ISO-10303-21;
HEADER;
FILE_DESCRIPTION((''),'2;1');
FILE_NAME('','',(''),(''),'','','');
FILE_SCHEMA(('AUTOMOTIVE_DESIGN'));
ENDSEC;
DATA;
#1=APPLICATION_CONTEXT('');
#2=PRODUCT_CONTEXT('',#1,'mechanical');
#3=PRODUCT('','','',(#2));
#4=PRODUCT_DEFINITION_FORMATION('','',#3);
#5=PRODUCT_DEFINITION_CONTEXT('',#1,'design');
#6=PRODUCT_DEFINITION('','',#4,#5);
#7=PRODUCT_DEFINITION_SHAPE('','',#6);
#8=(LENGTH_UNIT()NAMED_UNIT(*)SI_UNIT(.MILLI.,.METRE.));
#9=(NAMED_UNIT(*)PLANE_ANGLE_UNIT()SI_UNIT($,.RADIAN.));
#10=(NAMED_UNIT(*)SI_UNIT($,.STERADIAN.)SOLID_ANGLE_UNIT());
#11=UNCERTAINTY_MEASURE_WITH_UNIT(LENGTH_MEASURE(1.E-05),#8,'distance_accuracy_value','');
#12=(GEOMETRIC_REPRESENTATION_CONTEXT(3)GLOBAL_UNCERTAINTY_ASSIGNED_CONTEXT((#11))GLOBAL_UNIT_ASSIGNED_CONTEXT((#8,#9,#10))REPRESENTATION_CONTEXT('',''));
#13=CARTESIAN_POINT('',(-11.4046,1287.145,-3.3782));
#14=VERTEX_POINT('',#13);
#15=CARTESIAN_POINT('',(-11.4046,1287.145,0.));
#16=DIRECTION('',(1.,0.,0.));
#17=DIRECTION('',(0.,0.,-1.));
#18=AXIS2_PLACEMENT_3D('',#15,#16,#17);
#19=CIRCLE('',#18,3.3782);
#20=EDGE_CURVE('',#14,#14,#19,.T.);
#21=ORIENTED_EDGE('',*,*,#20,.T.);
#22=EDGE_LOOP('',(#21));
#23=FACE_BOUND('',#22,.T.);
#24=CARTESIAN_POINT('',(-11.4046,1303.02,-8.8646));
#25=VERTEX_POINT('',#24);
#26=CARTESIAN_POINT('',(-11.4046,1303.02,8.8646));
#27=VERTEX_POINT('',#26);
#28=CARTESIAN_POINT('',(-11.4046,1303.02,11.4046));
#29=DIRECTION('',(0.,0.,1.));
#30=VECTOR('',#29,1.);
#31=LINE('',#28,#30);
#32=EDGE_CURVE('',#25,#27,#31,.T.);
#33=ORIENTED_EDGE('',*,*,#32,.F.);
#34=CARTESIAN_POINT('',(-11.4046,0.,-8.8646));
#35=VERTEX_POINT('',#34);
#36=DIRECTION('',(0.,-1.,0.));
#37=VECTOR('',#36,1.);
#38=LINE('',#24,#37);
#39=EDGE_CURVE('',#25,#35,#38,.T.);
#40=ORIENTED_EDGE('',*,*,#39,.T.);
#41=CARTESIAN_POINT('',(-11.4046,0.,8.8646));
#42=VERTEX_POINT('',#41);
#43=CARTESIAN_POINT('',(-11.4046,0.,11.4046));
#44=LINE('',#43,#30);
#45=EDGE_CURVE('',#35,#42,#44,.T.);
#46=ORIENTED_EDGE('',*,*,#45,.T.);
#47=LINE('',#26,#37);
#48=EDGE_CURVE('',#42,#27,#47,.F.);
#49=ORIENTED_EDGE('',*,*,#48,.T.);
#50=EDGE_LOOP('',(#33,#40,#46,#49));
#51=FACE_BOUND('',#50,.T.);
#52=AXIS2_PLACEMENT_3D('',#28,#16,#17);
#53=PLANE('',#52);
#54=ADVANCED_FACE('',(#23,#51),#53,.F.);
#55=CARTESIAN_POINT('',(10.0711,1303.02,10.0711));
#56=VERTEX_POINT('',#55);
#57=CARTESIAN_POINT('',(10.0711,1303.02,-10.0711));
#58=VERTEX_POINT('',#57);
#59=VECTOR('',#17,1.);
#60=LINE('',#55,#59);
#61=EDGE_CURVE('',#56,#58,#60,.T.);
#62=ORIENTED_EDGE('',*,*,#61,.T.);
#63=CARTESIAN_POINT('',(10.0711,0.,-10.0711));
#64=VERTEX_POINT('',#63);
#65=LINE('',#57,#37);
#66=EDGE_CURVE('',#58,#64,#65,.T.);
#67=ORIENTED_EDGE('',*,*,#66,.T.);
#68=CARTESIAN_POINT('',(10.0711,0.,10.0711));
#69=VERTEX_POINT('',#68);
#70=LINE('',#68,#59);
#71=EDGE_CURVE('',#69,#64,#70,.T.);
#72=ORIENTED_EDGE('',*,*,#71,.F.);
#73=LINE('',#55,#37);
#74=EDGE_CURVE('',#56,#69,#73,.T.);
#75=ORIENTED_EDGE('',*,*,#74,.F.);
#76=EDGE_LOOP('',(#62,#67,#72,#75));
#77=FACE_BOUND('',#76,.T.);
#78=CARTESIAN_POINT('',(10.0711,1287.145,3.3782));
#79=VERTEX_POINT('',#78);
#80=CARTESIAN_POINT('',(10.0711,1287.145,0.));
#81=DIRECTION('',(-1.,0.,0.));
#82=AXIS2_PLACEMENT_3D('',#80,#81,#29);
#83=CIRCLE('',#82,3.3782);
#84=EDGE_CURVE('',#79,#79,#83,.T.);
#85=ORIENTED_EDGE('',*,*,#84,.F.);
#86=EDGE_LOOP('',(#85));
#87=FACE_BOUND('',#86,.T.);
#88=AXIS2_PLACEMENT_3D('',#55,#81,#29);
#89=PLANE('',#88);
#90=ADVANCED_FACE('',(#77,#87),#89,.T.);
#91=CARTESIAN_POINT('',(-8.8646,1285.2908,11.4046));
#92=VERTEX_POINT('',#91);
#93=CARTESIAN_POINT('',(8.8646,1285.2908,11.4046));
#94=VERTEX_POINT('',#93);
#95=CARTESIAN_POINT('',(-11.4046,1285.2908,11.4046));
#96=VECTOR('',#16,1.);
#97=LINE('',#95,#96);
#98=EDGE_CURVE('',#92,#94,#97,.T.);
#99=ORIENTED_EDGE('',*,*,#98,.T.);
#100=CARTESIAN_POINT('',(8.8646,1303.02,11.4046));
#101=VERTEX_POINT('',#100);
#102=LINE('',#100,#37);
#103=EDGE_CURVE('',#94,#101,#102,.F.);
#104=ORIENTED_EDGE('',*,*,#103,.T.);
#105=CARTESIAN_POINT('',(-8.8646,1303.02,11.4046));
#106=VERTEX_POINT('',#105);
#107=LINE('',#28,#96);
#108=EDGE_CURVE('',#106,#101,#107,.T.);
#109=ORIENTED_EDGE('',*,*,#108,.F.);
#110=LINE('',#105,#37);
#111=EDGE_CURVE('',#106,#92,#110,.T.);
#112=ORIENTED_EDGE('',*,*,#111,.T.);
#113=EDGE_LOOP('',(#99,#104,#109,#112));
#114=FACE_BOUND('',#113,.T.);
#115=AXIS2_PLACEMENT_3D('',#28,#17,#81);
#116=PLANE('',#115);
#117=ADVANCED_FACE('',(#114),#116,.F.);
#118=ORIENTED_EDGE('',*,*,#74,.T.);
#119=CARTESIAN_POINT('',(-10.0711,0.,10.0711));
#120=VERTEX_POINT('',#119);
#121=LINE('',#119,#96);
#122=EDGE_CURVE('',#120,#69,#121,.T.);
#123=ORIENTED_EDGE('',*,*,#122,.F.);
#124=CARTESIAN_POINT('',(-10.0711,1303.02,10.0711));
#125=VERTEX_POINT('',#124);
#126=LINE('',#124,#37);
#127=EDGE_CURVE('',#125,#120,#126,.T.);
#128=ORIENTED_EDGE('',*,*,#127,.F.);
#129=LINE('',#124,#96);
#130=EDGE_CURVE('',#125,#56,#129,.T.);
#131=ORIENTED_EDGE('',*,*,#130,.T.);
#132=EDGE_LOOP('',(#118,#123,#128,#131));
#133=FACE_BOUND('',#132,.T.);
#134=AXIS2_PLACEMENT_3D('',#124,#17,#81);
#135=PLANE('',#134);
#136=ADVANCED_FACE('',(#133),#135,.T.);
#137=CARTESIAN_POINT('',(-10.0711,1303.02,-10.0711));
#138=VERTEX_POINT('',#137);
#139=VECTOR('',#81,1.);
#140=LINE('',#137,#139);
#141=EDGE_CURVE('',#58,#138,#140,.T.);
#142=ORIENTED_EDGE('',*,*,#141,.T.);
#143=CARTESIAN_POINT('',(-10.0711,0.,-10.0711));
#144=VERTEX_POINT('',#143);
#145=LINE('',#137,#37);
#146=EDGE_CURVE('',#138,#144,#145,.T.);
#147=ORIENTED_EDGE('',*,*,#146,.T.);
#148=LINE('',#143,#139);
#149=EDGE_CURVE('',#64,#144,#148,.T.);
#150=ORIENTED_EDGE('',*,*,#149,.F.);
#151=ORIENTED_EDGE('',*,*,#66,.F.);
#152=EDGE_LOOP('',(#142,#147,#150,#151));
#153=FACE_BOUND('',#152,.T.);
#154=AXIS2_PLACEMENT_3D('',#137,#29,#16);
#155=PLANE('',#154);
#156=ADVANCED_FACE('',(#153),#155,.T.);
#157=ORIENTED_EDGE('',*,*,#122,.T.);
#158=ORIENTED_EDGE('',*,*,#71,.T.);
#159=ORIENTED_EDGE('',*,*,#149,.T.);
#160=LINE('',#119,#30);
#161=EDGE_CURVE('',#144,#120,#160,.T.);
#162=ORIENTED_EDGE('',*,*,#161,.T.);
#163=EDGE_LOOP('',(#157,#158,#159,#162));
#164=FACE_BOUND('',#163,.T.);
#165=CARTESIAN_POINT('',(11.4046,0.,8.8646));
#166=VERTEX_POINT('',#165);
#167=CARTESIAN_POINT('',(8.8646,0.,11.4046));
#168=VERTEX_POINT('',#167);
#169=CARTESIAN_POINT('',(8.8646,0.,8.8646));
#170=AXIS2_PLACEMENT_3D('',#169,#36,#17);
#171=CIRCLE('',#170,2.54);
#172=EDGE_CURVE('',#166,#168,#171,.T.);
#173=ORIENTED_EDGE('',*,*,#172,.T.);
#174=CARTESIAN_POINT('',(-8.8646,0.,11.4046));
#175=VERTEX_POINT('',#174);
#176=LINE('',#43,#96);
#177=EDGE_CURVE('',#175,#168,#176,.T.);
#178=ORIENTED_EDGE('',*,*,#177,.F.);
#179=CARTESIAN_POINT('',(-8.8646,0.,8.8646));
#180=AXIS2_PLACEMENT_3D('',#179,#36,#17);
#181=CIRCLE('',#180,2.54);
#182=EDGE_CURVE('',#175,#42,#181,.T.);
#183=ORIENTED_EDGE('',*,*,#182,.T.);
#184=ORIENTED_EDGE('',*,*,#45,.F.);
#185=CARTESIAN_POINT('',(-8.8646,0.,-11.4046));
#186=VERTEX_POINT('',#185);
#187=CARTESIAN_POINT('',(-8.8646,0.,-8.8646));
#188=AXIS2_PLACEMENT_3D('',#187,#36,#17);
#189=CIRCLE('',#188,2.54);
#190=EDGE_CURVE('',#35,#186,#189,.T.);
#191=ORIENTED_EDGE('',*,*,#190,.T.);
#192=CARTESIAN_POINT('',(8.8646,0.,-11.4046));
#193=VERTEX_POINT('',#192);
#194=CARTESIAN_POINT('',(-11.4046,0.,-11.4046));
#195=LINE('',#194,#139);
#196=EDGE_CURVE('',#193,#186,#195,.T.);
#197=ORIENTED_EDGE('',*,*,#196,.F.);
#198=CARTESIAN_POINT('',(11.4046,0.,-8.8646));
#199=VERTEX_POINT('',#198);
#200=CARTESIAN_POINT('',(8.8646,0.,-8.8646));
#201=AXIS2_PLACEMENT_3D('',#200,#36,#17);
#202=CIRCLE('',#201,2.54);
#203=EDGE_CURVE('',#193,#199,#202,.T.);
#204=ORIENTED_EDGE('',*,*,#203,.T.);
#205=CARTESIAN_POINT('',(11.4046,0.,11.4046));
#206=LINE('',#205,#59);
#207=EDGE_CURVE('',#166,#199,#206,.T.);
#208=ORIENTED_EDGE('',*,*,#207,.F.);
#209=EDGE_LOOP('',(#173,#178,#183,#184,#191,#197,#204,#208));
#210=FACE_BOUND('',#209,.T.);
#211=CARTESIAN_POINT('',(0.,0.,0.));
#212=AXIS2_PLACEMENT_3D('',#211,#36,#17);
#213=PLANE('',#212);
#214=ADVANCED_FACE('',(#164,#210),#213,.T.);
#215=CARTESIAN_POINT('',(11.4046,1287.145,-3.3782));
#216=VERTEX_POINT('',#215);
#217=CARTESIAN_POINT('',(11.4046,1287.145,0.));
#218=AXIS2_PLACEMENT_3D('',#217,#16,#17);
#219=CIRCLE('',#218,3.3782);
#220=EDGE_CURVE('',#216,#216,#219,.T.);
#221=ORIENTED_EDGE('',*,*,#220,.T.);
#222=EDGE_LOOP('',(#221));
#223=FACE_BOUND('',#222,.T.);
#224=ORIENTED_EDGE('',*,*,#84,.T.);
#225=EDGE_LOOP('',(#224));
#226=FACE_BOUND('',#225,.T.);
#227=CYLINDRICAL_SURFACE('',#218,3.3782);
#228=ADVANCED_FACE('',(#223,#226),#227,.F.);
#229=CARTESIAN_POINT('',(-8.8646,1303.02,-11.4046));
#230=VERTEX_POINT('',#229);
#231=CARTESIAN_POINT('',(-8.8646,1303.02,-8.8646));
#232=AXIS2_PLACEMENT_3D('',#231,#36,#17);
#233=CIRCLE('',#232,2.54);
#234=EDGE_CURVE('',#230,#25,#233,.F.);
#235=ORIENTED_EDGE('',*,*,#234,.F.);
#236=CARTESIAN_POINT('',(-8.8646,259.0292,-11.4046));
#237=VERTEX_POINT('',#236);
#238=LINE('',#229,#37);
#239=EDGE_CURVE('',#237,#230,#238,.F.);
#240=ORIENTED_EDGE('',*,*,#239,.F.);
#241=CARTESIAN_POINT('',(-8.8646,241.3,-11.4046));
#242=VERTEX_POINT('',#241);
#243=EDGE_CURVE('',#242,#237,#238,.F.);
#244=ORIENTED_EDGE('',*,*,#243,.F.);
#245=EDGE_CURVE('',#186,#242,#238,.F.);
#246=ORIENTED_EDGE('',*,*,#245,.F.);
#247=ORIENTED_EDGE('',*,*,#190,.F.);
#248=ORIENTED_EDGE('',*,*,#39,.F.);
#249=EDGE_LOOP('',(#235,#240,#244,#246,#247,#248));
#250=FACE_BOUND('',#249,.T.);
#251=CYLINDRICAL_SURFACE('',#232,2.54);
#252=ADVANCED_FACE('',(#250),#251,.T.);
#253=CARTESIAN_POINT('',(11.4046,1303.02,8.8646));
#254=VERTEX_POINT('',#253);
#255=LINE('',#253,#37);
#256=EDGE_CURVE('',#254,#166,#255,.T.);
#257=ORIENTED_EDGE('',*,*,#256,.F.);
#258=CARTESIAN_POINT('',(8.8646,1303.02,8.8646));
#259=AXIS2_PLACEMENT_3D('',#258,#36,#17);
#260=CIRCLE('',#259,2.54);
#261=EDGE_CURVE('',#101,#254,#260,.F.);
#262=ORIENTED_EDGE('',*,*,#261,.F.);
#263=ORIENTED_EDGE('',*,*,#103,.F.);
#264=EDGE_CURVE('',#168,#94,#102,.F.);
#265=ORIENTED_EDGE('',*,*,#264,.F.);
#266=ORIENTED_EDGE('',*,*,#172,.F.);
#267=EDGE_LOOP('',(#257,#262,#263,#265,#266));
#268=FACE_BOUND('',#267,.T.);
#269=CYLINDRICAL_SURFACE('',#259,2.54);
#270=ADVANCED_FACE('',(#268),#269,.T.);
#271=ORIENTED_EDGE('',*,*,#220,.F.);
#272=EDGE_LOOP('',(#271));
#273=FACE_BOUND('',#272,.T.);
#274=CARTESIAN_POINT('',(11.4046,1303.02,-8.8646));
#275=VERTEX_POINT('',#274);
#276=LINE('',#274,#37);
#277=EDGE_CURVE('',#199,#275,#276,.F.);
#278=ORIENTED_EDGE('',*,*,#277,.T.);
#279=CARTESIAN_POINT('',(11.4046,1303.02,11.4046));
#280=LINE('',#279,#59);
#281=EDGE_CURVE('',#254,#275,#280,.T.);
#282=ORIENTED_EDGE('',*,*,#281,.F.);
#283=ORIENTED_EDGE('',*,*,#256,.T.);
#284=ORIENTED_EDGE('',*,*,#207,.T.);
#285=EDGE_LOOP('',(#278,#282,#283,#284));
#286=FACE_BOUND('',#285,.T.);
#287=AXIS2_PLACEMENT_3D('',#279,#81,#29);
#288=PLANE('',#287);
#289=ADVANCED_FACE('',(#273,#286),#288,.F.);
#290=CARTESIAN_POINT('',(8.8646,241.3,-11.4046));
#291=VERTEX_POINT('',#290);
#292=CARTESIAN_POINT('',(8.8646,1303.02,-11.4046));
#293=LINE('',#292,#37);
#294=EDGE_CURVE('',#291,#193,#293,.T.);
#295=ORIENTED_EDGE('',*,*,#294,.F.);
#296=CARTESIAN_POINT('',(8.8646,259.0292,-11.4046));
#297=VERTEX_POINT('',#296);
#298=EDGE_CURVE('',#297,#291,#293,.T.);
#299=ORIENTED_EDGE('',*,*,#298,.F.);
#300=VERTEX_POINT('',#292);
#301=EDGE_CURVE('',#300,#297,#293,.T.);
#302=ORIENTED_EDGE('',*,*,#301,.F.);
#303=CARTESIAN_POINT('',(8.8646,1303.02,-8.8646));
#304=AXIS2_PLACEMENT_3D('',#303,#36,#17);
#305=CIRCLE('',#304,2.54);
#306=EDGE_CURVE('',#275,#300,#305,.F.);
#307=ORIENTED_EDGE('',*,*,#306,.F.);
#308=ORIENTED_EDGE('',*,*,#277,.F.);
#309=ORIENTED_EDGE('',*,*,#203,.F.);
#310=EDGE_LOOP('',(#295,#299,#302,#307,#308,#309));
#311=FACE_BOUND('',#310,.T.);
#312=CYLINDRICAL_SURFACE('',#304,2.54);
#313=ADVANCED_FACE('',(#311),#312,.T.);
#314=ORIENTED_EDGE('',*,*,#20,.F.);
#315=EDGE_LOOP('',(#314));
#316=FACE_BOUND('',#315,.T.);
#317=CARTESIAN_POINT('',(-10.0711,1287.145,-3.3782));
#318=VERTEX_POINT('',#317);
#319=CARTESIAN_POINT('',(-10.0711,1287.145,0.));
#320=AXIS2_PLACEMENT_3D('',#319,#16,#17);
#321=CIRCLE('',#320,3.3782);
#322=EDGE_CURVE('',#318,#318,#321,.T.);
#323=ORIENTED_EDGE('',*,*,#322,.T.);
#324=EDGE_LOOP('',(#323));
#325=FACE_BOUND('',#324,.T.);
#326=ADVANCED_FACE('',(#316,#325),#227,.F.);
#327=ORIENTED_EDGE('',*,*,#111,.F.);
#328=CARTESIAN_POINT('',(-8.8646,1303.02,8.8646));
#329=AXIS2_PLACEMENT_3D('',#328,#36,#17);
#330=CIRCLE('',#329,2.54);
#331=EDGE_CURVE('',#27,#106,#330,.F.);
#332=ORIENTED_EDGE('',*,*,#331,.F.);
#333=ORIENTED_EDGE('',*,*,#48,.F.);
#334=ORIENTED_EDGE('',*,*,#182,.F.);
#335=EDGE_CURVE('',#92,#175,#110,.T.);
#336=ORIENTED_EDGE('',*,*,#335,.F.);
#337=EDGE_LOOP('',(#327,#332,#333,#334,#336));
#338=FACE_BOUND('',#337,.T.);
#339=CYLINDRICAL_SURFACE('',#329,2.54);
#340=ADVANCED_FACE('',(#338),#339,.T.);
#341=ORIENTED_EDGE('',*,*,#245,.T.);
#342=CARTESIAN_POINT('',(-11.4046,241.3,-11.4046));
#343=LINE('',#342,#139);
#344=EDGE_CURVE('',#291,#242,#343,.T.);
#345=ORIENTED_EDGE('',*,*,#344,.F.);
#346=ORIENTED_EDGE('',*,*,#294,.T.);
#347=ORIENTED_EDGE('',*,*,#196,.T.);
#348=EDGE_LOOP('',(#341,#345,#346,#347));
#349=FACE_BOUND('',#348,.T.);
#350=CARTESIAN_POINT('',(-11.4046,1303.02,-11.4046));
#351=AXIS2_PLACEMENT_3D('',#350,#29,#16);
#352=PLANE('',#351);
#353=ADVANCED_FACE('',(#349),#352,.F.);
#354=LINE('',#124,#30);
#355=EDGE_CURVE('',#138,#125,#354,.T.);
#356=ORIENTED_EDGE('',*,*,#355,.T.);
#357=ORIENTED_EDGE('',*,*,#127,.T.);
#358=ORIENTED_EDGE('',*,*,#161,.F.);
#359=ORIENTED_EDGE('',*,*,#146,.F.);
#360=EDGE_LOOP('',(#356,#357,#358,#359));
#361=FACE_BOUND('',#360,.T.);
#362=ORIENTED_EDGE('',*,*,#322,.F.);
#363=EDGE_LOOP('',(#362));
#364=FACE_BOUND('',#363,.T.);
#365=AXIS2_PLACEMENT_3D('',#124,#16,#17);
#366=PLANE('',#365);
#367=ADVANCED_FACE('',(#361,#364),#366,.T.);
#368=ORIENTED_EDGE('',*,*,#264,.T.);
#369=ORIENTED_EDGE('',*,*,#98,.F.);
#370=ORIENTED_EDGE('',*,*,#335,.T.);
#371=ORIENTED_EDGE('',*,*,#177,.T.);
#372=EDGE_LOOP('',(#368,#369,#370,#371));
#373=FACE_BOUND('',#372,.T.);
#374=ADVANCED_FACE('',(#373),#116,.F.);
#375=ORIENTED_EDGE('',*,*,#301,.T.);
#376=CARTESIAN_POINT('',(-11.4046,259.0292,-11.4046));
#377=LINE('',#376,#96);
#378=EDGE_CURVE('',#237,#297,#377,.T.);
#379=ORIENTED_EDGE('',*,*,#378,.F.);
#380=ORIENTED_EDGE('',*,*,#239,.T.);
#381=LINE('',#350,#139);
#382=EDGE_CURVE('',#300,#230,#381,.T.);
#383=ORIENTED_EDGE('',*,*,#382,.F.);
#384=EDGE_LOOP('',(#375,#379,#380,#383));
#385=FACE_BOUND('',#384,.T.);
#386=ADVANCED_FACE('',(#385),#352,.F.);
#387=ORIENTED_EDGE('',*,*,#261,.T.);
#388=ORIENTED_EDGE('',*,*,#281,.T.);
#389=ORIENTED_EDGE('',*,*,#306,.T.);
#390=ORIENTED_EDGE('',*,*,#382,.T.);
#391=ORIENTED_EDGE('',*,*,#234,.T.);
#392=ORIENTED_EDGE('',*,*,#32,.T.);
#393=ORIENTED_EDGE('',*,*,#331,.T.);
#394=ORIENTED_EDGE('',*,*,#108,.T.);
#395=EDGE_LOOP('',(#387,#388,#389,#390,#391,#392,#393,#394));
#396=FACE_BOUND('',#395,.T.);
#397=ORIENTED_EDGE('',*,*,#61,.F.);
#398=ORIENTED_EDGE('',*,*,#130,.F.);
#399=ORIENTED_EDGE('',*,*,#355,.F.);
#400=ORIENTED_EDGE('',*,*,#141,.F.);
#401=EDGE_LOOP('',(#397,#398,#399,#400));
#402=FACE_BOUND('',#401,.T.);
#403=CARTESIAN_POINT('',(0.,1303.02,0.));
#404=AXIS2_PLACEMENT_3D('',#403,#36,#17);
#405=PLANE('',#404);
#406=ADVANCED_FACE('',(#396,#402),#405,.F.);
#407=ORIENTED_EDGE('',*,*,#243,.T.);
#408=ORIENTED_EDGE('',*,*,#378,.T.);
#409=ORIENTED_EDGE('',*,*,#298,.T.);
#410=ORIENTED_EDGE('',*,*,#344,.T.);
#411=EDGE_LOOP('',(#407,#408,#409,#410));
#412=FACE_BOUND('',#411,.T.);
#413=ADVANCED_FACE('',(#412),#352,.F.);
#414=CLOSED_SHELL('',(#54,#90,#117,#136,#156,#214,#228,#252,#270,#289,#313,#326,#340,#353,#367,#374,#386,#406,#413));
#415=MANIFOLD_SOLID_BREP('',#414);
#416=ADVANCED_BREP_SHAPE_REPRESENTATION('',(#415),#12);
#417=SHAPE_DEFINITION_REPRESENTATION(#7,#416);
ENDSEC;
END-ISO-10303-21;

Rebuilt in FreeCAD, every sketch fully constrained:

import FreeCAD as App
import Part
import Sketcher
Q = App.Units.Quantity


def edges_at(feature, points):
    """Names of the edges that pass closest to the given points."""
    edges = feature.Shape.Edges
    near = lambda p: min(range(len(edges)), key=lambda i: edges[i].distToShape(Part.Vertex(*p))[0])
    return sorted({f"Edge{near(p) + 1}" for p in points})


def add_polygon(sketch, points):
    """Adds a closed chain of lines whose ends are joined by coincident constraints."""
    first, n = sketch.GeometryCount, len(points)
    for a, b in zip(points, points[1:] + points[:1]):
        sketch.addGeometry(Part.LineSegment(App.Vector(*a, 0), App.Vector(*b, 0)), False)
    for i in range(n):
        sketch.addConstraint(Sketcher.Constraint("Coincident", first + i, 2, first + (i + 1) % n, 1))

doc = App.newDocument("Part")
body = doc.addObject("PartDesign::Body", "Body")

sketch1 = body.newObject("Sketcher::SketchObject", "Sketch")
sketch1.AttachmentSupport = (doc.getObject("XZ_Plane"), [""])
sketch1.MapMode = "FlatFace"
add_polygon(sketch1, [(-11, -11), (-11, 11), (11, 11), (11, -11)])
add_polygon(sketch1, [(10, 10), (-10, 10), (-10, -10), (10, -10)])
sketch1.addConstraint(Sketcher.Constraint("Vertical", 0))
sketch1.addConstraint(Sketcher.Constraint("Horizontal", 1))
sketch1.addConstraint(Sketcher.Constraint("Vertical", 2))
sketch1.addConstraint(Sketcher.Constraint("Horizontal", 3))
sketch1.addConstraint(Sketcher.Constraint("Horizontal", 4))
sketch1.addConstraint(Sketcher.Constraint("Vertical", 5))
sketch1.addConstraint(Sketcher.Constraint("Horizontal", 6))
sketch1.addConstraint(Sketcher.Constraint("Vertical", 7))
sketch1.addConstraint(Sketcher.Constraint("Symmetric", 0, 2, 2, 2, -1, 1))
sketch1.addConstraint(Sketcher.Constraint("Symmetric", 4, 2, 6, 2, -1, 1))
sketch1.addConstraint(Sketcher.Constraint("Equal", 3, 0))
sketch1.addConstraint(Sketcher.Constraint("Equal", 6, 5))
sketch1.addConstraint(Sketcher.Constraint("DistanceX", 1, 1, 1, 2, Q("0.898 in")))
sketch1.addConstraint(Sketcher.Constraint("DistanceX", 4, 2, 4, 1, Q("0.793 in")))
pad1 = body.newObject("PartDesign::Pad", "Pad")
pad1.Profile = sketch1
pad1.Length = Q("51.3 in")
pad1.Reversed = True
doc.recompute()

fillet = body.newObject("PartDesign::Fillet", "Fillet")
fillet.Base = (pad1, edges_at(pad1, [
    (11.405, 651.51, 11.405),
    (-11.405, 651.51, 11.405),
    (-11.405, 651.51, -11.405),
    (11.405, 651.51, -11.405),
]))
fillet.Radius = Q("0.1 in")

sketch2 = body.newObject("Sketcher::SketchObject", "Sketch001")
sketch2.AttachmentSupport = (doc.getObject("XZ_Plane"), [""])
sketch2.MapMode = "FlatFace"
sketch2.addGeometry(Part.Circle(App.Vector(0, 0, 0), App.Vector(0, 0, 1), 3.2), False)
sketch2.addConstraint(Sketcher.Constraint("Coincident", 0, 3, -1, 1))
sketch2.addConstraint(Sketcher.Constraint("Diameter", 0, Q("0.25 in")))
doc.recompute()
hole = body.newObject("PartDesign::Hole", "Hole")
hole.Profile = sketch2
hole.ThreadType = "None"
hole.Diameter = Q("0.25 in")
hole.DepthType = "ThroughAll"

sketch3 = body.newObject("Sketcher::SketchObject", "Sketch002")
sketch3.AttachmentSupport = (doc.getObject("YZ_Plane"), [""])
sketch3.MapMode = "FlatFace"
sketch3.AttachmentOffset = App.Placement(App.Vector(0, 0, 0.449 * 25.4), App.Rotation())
sketch3.addGeometry(Part.Circle(App.Vector(1287.1, 0, 0), App.Vector(0, 0, 1), 3.4), False)
sketch3.addConstraint(Sketcher.Constraint("PointOnObject", 0, 3, -1))
sketch3.addConstraint(Sketcher.Constraint("Diameter", 0, Q("0.266 in")))
sketch3.addConstraint(Sketcher.Constraint("DistanceX", -1, 1, 0, 3, Q("50.675 in")))
doc.recompute()
hole2 = body.newObject("PartDesign::Hole", "Hole001")
hole2.Profile = sketch3
hole2.ThreadType = "None"
hole2.Diameter = Q("0.266 in")
hole2.DepthType = "ThroughAll"

doc.recompute()
